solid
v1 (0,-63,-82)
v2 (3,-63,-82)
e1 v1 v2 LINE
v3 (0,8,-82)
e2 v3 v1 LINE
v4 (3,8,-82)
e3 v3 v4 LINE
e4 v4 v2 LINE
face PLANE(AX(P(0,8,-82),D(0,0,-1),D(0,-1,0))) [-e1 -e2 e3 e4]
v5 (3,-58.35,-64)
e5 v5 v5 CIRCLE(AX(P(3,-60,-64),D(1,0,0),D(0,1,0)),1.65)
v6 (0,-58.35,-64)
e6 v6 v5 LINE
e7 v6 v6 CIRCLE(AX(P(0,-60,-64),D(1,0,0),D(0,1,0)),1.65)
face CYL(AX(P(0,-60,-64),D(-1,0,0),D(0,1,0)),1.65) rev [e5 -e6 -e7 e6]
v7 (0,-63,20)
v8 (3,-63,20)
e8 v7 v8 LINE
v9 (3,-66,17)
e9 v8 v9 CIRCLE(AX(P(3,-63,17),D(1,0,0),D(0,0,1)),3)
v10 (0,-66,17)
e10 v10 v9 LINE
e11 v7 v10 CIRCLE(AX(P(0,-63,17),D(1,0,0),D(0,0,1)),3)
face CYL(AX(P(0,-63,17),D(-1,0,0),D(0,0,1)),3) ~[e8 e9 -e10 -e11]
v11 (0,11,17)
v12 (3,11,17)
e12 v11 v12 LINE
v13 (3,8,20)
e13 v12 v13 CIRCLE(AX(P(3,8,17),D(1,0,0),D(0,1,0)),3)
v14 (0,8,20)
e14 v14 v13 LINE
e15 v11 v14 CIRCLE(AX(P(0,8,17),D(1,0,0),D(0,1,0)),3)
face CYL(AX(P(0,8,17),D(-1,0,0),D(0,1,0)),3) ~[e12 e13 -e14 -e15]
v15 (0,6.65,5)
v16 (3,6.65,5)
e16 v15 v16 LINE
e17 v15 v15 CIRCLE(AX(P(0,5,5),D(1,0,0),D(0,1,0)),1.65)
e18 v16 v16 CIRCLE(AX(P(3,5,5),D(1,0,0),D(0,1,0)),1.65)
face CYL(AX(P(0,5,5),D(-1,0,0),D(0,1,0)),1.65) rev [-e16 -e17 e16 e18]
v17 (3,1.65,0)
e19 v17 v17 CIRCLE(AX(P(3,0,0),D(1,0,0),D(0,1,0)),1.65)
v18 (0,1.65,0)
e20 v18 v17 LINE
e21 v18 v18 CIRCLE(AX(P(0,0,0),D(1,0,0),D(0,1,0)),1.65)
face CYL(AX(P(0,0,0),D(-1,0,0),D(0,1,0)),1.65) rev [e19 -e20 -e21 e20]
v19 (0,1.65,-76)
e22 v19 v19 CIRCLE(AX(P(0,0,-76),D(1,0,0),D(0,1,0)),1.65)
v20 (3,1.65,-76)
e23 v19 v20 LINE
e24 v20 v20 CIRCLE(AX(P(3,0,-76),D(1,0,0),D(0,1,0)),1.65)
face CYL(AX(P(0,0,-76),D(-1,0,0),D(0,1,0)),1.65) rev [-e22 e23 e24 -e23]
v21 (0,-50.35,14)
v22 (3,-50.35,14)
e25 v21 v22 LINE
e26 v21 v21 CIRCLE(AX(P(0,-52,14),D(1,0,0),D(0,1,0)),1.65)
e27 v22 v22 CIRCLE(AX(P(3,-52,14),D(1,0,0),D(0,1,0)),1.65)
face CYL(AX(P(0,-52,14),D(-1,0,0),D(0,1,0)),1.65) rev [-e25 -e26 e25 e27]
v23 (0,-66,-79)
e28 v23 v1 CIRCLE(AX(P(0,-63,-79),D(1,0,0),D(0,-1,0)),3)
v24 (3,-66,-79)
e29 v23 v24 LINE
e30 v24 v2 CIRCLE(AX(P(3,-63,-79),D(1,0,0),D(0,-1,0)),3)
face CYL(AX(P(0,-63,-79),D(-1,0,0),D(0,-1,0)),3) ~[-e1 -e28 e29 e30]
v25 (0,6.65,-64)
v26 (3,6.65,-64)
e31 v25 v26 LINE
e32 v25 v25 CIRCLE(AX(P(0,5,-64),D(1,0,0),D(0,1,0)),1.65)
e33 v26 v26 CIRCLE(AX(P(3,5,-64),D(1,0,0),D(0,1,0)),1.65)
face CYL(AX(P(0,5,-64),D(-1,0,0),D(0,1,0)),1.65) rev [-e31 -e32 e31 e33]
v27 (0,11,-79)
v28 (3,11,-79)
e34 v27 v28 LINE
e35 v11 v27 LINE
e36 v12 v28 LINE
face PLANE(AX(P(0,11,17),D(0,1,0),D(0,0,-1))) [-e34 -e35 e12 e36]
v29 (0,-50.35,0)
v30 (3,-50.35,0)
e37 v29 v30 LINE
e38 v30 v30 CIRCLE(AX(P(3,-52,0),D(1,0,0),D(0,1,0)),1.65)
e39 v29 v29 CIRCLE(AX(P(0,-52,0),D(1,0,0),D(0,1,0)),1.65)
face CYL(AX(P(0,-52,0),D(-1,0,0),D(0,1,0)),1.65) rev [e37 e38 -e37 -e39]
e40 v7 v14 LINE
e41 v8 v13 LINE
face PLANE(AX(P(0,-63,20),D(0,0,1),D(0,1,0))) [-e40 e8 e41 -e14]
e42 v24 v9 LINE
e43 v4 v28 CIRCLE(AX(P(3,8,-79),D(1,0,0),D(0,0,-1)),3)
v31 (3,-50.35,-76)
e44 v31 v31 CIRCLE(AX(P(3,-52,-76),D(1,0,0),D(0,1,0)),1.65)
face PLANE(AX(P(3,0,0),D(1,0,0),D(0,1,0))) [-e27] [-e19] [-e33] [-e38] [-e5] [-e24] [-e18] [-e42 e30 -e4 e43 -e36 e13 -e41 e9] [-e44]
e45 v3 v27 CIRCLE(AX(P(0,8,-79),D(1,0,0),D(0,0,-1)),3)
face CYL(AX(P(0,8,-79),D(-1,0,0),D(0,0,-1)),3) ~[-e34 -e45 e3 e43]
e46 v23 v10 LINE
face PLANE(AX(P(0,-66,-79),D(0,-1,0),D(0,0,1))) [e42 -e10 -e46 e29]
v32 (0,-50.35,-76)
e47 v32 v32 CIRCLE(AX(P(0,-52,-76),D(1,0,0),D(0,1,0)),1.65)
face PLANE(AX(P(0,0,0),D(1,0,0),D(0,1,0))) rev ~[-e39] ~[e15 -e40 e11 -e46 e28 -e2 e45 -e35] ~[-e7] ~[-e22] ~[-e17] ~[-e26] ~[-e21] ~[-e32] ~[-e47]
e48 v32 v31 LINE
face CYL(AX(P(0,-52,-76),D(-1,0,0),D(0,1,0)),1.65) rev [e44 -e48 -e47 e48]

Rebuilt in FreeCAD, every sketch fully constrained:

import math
import FreeCAD as App
import Part
import Sketcher
from FreeCAD import Vector
Q = App.Units.Quantity

doc = App.newDocument("Part")
body = doc.addObject("PartDesign::Body", "Body")

# Sketch on YZ plane
sketch1 = body.newObject("Sketcher::SketchObject", "Sketch")
sketch1.AttachmentSupport = (doc.getObject("YZ_Plane"), [""])
sketch1.MapMode = "FlatFace"
sketch1.addGeometry(Part.LineSegment(Vector(8, 20, 0), Vector(-63, 20, 0)), False)
sketch1.addGeometry(Part.ArcOfCircle(Part.Circle(Vector(-63, 17, 0), Vector(0, 0, 1), 3), math.radians(90), math.radians(180)), False)
sketch1.addGeometry(Part.LineSegment(Vector(-66, 17, 0), Vector(-66, -79, 0)), False)
sketch1.addGeometry(Part.ArcOfCircle(Part.Circle(Vector(-63, -79, 0), Vector(0, 0, 1), 3), math.radians(180), math.radians(270)), False)
sketch1.addGeometry(Part.LineSegment(Vector(-63, -82, 0), Vector(8, -82, 0)), False)
sketch1.addGeometry(Part.ArcOfCircle(Part.Circle(Vector(8, -79, 0), Vector(0, 0, 1), 3), math.radians(-90), math.radians(0)), False)
sketch1.addGeometry(Part.LineSegment(Vector(11, -79, 0), Vector(11, 17, 0)), False)
sketch1.addGeometry(Part.ArcOfCircle(Part.Circle(Vector(8, 17, 0), Vector(0, 0, 1), 3), math.radians(0), math.radians(90)), False)
sketch1.addGeometry(Part.Circle(Vector(-52, -76, 0), Vector(0, 0, 1), 1.6), False)
sketch1.addGeometry(Part.Circle(Vector(-60, -64, 0), Vector(0, 0, 1), 1.6), False)
sketch1.addGeometry(Part.Circle(Vector(0, -76, 0), Vector(0, 0, 1), 1.6), False)
sketch1.addGeometry(Part.Circle(Vector(5, -64, 0), Vector(0, 0, 1), 1.6), False)
sketch1.addGeometry(Part.Circle(Vector(-52, 0, 0), Vector(0, 0, 1), 1.6), False)
sketch1.addGeometry(Part.Circle(Vector(-52, 14, 0), Vector(0, 0, 1), 1.6), False)
sketch1.addGeometry(Part.Circle(Vector(0, 0, 0), Vector(0, 0, 1), 1.6), False)
sketch1.addGeometry(Part.Circle(Vector(5, 5, 0), Vector(0, 0, 1), 1.6), False)
sketch1.addConstraint(Sketcher.Constraint("Tangent", 0, 2, 1, 1))
sketch1.addConstraint(Sketcher.Constraint("Tangent", 1, 2, 2, 1))
sketch1.addConstraint(Sketcher.Constraint("Tangent", 2, 2, 3, 1))
sketch1.addConstraint(Sketcher.Constraint("Tangent", 3, 2, 4, 1))
sketch1.addConstraint(Sketcher.Constraint("Tangent", 4, 2, 5, 1))
sketch1.addConstraint(Sketcher.Constraint("Tangent", 5, 2, 6, 1))
sketch1.addConstraint(Sketcher.Constraint("Tangent", 6, 2, 7, 1))
sketch1.addConstraint(Sketcher.Constraint("Tangent", 7, 2, 0, 1))
sketch1.addConstraint(Sketcher.Constraint("Horizontal", 0))
sketch1.addConstraint(Sketcher.Constraint("Vertical", 2))
sketch1.addConstraint(Sketcher.Constraint("Horizontal", 4))
sketch1.addConstraint(Sketcher.Constraint("Vertical", 6))
sketch1.addConstraint(Sketcher.Constraint("Coincident", 14, 3, -1, 1))
sketch1.addConstraint(Sketcher.Constraint("Equal", 1, 3))
sketch1.addConstraint(Sketcher.Constraint("Equal", 3, 5))
sketch1.addConstraint(Sketcher.Constraint("Equal", 5, 7))
sketch1.addConstraint(Sketcher.Constraint("Equal", 8, 9))
sketch1.addConstraint(Sketcher.Constraint("Equal", 9, 10))
sketch1.addConstraint(Sketcher.Constraint("Equal", 10, 11))
sketch1.addConstraint(Sketcher.Constraint("Equal", 11, 12))
sketch1.addConstraint(Sketcher.Constraint("Equal", 12, 13))
sketch1.addConstraint(Sketcher.Constraint("Equal", 13, 14))
sketch1.addConstraint(Sketcher.Constraint("Equal", 14, 15))
sketch1.addConstraint(Sketcher.Constraint("PointOnObject", 10, 3, -2))
sketch1.addConstraint(Sketcher.Constraint("PointOnObject", 12, 3, -1))
sketch1.addConstraint(Sketcher.Constraint("Horizontal", 8, 3, 10, 3))
sketch1.addConstraint(Sketcher.Constraint("Horizontal", 9, 3, 11, 3))
sketch1.addConstraint(Sketcher.Constraint("Vertical", 8, 3, 12, 3))
sketch1.addConstraint(Sketcher.Constraint("Vertical", 12, 3, 13, 3))
sketch1.addConstraint(Sketcher.Constraint("Vertical", 11, 3, 15, 3))
sketch1.addConstraint(Sketcher.Constraint("Radius", 1, Q("3 mm")))
sketch1.addConstraint(Sketcher.Constraint("Diameter", 8, Q("3.3 mm")))
sketch1.addConstraint(Sketcher.Constraint("DistanceY", 3, 3, 8, 3, Q("3 mm")))
sketch1.addConstraint(Sketcher.Constraint("DistanceX", 3, 3, 9, 3, Q("3 mm")))
sketch1.addConstraint(Sketcher.Constraint("DistanceX", 11, 3, 5, 3, Q("3 mm")))
sketch1.addConstraint(Sketcher.Constraint("DistanceY", 13, 3, 1, 3, Q("3 mm")))
sketch1.addConstraint(Sketcher.Constraint("DistanceX", 0, 2, 0, 1, Q("71 mm")))
sketch1.addConstraint(Sketcher.Constraint("DistanceY", 2, 2, 2, 1, Q("96 mm")))
sketch1.addConstraint(Sketcher.Constraint("DistanceX", 1, 3, -1, 1, Q("63 mm")))
sketch1.addConstraint(Sketcher.Constraint("DistanceY", -1, 1, 1, 3, Q("17 mm")))
sketch1.addConstraint(Sketcher.Constraint("DistanceX", 8, 3, -1, 1, Q("52 mm")))
sketch1.addConstraint(Sketcher.Constraint("DistanceY", 9, 3, -1, 1, Q("64 mm")))
sketch1.addConstraint(Sketcher.Constraint("DistanceY", -1, 1, 15, 3, Q("5 mm")))
pad1 = body.newObject("PartDesign::Pad", "Pad")
pad1.Profile = sketch1
pad1.Length = 3

doc.recompute()
